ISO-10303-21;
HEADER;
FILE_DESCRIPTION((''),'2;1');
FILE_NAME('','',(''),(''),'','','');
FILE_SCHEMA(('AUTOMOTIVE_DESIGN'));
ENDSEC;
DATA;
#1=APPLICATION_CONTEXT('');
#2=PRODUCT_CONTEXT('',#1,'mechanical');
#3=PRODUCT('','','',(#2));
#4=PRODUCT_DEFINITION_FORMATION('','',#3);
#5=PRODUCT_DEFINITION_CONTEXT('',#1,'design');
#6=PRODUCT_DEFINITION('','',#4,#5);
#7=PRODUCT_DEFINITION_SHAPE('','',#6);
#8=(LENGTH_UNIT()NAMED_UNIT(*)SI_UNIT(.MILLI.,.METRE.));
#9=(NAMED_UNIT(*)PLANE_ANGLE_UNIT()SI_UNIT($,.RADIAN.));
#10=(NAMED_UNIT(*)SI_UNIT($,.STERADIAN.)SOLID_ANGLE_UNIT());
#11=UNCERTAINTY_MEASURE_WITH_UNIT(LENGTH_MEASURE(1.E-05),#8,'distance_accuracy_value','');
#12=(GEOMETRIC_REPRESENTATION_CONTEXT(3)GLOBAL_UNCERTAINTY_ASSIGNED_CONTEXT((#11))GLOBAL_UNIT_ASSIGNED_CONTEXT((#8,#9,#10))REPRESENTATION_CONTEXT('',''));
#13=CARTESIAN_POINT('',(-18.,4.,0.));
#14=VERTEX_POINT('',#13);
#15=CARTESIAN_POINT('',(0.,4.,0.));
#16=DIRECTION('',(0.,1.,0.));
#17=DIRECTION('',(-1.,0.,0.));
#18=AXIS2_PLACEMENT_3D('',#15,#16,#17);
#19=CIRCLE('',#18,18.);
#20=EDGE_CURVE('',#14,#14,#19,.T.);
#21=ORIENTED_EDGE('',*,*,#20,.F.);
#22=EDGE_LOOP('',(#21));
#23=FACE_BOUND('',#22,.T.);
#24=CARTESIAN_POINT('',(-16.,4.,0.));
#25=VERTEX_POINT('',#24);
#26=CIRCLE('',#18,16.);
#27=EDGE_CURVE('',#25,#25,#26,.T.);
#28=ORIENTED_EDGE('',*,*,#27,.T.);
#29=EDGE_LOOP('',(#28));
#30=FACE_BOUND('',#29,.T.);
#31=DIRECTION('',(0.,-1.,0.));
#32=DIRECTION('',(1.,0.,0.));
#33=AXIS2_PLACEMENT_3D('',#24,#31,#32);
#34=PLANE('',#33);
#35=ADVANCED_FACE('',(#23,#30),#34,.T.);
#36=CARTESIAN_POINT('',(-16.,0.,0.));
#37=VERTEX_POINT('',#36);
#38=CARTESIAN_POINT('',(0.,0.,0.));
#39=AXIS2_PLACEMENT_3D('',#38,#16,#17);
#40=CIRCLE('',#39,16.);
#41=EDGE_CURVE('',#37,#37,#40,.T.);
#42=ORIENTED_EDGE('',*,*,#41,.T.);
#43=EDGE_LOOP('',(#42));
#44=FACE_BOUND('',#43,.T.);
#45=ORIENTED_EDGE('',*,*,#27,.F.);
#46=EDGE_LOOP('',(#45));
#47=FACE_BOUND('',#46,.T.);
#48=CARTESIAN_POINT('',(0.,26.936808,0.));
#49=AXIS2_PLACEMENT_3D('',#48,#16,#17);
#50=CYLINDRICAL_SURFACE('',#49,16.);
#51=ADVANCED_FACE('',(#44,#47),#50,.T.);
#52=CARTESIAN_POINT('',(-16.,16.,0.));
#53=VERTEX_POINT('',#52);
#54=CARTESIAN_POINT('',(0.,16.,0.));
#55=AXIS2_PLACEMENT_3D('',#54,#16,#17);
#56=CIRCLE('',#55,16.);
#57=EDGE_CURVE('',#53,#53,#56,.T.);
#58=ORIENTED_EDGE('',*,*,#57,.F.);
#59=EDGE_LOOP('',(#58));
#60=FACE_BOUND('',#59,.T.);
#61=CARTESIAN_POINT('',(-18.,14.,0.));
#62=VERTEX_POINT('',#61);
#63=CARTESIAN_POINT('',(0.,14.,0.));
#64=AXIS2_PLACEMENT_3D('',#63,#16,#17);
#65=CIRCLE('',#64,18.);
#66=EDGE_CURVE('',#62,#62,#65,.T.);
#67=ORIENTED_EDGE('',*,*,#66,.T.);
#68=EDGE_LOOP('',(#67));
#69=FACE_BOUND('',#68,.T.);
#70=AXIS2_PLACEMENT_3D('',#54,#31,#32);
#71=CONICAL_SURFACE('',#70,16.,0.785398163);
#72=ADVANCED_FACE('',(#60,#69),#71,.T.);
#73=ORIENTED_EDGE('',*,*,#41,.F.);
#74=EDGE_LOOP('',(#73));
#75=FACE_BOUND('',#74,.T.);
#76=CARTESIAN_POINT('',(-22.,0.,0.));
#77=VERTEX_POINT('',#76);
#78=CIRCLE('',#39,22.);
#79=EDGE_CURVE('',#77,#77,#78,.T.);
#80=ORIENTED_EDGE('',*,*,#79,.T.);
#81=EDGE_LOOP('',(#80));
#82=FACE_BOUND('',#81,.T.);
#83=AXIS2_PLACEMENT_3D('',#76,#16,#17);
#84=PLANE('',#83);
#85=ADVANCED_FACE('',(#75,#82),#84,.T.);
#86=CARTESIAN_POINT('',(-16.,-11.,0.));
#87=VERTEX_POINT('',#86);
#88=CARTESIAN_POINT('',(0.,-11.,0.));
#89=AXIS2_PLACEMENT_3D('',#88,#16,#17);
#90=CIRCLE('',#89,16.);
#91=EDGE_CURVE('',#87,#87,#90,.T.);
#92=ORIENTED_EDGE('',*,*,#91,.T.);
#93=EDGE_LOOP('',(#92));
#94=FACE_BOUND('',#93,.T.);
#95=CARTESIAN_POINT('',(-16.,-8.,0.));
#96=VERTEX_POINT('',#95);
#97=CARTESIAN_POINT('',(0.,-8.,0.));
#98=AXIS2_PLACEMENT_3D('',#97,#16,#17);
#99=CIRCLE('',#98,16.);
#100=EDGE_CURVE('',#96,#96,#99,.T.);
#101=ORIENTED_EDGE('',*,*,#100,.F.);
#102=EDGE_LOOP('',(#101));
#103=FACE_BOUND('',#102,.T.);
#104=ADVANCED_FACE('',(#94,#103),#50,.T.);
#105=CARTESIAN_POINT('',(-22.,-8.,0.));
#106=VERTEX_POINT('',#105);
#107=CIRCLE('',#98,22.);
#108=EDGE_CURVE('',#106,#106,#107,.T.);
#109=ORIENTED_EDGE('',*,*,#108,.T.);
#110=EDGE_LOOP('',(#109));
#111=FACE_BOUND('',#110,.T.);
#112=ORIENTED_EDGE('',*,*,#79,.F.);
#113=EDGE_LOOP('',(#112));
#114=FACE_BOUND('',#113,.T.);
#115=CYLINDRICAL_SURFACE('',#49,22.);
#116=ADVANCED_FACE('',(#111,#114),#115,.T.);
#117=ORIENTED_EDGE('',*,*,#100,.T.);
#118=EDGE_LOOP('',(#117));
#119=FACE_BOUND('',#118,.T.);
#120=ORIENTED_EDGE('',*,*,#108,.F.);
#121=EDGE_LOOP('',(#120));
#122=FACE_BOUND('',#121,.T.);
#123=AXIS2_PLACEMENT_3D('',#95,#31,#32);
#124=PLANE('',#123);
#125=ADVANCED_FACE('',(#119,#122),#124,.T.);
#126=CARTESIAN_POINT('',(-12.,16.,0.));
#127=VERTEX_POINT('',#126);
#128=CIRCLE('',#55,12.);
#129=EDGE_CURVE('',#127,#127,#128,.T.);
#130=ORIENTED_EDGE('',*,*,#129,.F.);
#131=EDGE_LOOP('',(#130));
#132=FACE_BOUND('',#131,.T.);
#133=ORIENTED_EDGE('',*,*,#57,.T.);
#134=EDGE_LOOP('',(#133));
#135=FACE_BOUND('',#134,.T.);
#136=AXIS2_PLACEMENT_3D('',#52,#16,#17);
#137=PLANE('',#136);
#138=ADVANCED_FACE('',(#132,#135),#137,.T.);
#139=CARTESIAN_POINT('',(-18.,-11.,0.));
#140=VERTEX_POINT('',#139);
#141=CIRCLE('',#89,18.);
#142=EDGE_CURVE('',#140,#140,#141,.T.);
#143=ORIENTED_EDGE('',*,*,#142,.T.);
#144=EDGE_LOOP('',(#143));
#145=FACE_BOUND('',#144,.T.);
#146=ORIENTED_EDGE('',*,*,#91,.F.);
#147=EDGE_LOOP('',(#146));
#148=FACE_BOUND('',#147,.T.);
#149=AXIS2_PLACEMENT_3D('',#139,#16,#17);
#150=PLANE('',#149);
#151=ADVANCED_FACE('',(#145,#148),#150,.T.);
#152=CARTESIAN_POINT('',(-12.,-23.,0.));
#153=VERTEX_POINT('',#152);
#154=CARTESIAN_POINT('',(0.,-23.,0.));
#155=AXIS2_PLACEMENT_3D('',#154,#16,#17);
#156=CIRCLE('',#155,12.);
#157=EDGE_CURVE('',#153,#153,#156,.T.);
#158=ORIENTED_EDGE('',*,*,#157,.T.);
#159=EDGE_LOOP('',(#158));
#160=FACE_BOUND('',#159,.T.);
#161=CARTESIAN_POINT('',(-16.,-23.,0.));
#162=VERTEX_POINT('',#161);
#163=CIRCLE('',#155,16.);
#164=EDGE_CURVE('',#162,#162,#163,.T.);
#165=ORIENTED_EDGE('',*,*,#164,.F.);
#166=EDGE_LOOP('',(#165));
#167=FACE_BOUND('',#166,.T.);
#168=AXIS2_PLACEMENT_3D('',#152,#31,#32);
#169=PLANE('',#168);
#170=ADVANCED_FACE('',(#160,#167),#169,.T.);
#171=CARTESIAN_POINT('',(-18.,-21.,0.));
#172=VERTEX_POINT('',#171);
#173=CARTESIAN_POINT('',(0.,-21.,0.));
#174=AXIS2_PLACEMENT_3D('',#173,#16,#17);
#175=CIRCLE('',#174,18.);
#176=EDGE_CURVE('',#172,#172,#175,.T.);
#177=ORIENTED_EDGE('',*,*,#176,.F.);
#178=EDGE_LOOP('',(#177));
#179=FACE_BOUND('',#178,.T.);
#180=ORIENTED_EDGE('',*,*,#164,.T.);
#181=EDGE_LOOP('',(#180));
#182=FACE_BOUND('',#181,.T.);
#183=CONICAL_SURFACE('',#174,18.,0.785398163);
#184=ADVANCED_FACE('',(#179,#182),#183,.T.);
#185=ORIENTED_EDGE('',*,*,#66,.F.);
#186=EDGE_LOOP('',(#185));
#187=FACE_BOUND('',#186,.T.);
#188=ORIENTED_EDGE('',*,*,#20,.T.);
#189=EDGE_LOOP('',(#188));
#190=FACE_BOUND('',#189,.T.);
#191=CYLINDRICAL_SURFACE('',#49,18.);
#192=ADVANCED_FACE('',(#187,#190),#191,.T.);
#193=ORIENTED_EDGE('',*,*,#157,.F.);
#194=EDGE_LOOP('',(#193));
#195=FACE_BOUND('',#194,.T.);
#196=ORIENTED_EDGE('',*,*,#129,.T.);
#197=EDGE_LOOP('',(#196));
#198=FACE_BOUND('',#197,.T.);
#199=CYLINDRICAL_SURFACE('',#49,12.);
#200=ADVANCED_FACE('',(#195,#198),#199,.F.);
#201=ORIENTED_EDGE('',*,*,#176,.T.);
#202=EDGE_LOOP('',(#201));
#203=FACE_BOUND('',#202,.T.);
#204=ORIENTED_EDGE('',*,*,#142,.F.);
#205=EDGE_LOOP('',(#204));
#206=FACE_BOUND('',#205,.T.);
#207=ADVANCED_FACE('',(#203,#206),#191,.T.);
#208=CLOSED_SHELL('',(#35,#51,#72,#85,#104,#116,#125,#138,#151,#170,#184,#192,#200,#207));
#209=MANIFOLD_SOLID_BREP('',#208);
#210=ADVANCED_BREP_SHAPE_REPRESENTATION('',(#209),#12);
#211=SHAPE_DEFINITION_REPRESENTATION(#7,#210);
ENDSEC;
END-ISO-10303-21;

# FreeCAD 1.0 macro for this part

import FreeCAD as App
import Part
import Sketcher

doc = App.newDocument("Part")
body = doc.addObject("PartDesign::Body", "Body")

sketch1 = body.newObject("Sketcher::SketchObject", "Sketch")
sketch1.AttachmentSupport = (doc.getObject("XY_Plane"), [""])
sketch1.MapMode = "FlatFace"
sketch1.addGeometry(Part.LineSegment(App.Vector(-16, -23, 0), App.Vector(-12, -23, 0)), False)
sketch1.addGeometry(Part.LineSegment(App.Vector(-12, -23, 0), App.Vector(-12, 16, 0)), False)
sketch1.addGeometry(Part.LineSegment(App.Vector(-12, 16, 0), App.Vector(-16, 16, 0)), False)
sketch1.addGeometry(Part.LineSegment(App.Vector(-16, 16, 0), App.Vector(-18, 14, 0)), False)
sketch1.addGeometry(Part.LineSegment(App.Vector(-18, 14, 0), App.Vector(-18, 4, 0)), False)
sketch1.addGeometry(Part.LineSegment(App.Vector(-18, 4, 0), App.Vector(-16, 4, 0)), False)
sketch1.addGeometry(Part.LineSegment(App.Vector(-16, 4, 0), App.Vector(-16, 0, 0)), False)
sketch1.addGeometry(Part.LineSegment(App.Vector(-16, 0, 0), App.Vector(-22, 0, 0)), False)
sketch1.addGeometry(Part.LineSegment(App.Vector(-22, 0, 0), App.Vector(-22, -8, 0)), False)
sketch1.addGeometry(Part.LineSegment(App.Vector(-22, -8, 0), App.Vector(-16, -8, 0)), False)
sketch1.addGeometry(Part.LineSegment(App.Vector(-16, -8, 0), App.Vector(-16, -11, 0)), False)
sketch1.addGeometry(Part.LineSegment(App.Vector(-16, -11, 0), App.Vector(-18, -11, 0)), False)
sketch1.addGeometry(Part.LineSegment(App.Vector(-18, -11, 0), App.Vector(-18, -21, 0)), False)
sketch1.addGeometry(Part.LineSegment(App.Vector(-18, -21, 0), App.Vector(-16, -23, 0)), False)
sketch1.addConstraint(Sketcher.Constraint("Coincident", 0, 2, 1, 1))
sketch1.addConstraint(Sketcher.Constraint("Coincident", 1, 2, 2, 1))
sketch1.addConstraint(Sketcher.Constraint("Coincident", 2, 2, 3, 1))
sketch1.addConstraint(Sketcher.Constraint("Coincident", 3, 2, 4, 1))
sketch1.addConstraint(Sketcher.Constraint("Coincident", 4, 2, 5, 1))
sketch1.addConstraint(Sketcher.Constraint("Coincident", 5, 2, 6, 1))
sketch1.addConstraint(Sketcher.Constraint("Coincident", 6, 2, 7, 1))
sketch1.addConstraint(Sketcher.Constraint("Coincident", 7, 2, 8, 1))
sketch1.addConstraint(Sketcher.Constraint("Coincident", 8, 2, 9, 1))
sketch1.addConstraint(Sketcher.Constraint("Coincident", 9, 2, 10, 1))
sketch1.addConstraint(Sketcher.Constraint("Coincident", 10, 2, 11, 1))
sketch1.addConstraint(Sketcher.Constraint("Coincident", 11, 2, 12, 1))
sketch1.addConstraint(Sketcher.Constraint("Coincident", 12, 2, 13, 1))
sketch1.addConstraint(Sketcher.Constraint("Coincident", 13, 2, 0, 1))
sketch1.addConstraint(Sketcher.Constraint("Horizontal", 0))
sketch1.addConstraint(Sketcher.Constraint("Vertical", 1))
sketch1.addConstraint(Sketcher.Constraint("Horizontal", 2))
sketch1.addConstraint(Sketcher.Constraint("Vertical", 4))
sketch1.addConstraint(Sketcher.Constraint("Horizontal", 5))
sketch1.addConstraint(Sketcher.Constraint("Vertical", 6))
sketch1.addConstraint(Sketcher.Constraint("Horizontal", 7))
sketch1.addConstraint(Sketcher.Constraint("Vertical", 8))
sketch1.addConstraint(Sketcher.Constraint("Horizontal", 9))
sketch1.addConstraint(Sketcher.Constraint("Vertical", 10))
sketch1.addConstraint(Sketcher.Constraint("Horizontal", 11))
sketch1.addConstraint(Sketcher.Constraint("Vertical", 12))
sketch1.addConstraint(Sketcher.Constraint("PointOnObject", 6, 2, -1))
sketch1.addConstraint(Sketcher.Constraint("Perpendicular", 3, 13))
sketch1.addConstraint(Sketcher.Constraint("Vertical", 2, 2, 5, 2))
sketch1.addConstraint(Sketcher.Constraint("Vertical", 6, 2, 9, 2))
sketch1.addConstraint(Sketcher.Constraint("Vertical", 4, 2, 11, 2))
sketch1.addConstraint(Sketcher.Constraint("Vertical", 10, 2, 13, 2))
sketch1.addConstraint(Sketcher.Constraint("Equal", 2, 6))
sketch1.addConstraint(Sketcher.Constraint("Equal", 4, 12))
sketch1.addConstraint(Sketcher.Constraint("Equal", 3, 13))
sketch1.addConstraint(Sketcher.Constraint("DistanceX", 0, 1, 0, 2, 4.0))
sketch1.addConstraint(Sketcher.Constraint("DistanceX", 5, 1, 5, 2, 2.0))
sketch1.addConstraint(Sketcher.Constraint("DistanceX", 7, 2, 7, 1, 6.0))
sketch1.addConstraint(Sketcher.Constraint("DistanceY", 1, 1, 1, 2, 39.0))
sketch1.addConstraint(Sketcher.Constraint("DistanceY", 4, 2, 4, 1, 10.0))
sketch1.addConstraint(Sketcher.Constraint("DistanceY", 8, 2, 8, 1, 8.0))
sketch1.addConstraint(Sketcher.Constraint("DistanceX", 0, 2, -1, 1, 12.0))
revolution = body.newObject("PartDesign::Revolution", "Revolution")
revolution.Profile = sketch1
revolution.ReferenceAxis = (sketch1, ["V_Axis"])
revolution.Angle = 360

doc.recompute()
